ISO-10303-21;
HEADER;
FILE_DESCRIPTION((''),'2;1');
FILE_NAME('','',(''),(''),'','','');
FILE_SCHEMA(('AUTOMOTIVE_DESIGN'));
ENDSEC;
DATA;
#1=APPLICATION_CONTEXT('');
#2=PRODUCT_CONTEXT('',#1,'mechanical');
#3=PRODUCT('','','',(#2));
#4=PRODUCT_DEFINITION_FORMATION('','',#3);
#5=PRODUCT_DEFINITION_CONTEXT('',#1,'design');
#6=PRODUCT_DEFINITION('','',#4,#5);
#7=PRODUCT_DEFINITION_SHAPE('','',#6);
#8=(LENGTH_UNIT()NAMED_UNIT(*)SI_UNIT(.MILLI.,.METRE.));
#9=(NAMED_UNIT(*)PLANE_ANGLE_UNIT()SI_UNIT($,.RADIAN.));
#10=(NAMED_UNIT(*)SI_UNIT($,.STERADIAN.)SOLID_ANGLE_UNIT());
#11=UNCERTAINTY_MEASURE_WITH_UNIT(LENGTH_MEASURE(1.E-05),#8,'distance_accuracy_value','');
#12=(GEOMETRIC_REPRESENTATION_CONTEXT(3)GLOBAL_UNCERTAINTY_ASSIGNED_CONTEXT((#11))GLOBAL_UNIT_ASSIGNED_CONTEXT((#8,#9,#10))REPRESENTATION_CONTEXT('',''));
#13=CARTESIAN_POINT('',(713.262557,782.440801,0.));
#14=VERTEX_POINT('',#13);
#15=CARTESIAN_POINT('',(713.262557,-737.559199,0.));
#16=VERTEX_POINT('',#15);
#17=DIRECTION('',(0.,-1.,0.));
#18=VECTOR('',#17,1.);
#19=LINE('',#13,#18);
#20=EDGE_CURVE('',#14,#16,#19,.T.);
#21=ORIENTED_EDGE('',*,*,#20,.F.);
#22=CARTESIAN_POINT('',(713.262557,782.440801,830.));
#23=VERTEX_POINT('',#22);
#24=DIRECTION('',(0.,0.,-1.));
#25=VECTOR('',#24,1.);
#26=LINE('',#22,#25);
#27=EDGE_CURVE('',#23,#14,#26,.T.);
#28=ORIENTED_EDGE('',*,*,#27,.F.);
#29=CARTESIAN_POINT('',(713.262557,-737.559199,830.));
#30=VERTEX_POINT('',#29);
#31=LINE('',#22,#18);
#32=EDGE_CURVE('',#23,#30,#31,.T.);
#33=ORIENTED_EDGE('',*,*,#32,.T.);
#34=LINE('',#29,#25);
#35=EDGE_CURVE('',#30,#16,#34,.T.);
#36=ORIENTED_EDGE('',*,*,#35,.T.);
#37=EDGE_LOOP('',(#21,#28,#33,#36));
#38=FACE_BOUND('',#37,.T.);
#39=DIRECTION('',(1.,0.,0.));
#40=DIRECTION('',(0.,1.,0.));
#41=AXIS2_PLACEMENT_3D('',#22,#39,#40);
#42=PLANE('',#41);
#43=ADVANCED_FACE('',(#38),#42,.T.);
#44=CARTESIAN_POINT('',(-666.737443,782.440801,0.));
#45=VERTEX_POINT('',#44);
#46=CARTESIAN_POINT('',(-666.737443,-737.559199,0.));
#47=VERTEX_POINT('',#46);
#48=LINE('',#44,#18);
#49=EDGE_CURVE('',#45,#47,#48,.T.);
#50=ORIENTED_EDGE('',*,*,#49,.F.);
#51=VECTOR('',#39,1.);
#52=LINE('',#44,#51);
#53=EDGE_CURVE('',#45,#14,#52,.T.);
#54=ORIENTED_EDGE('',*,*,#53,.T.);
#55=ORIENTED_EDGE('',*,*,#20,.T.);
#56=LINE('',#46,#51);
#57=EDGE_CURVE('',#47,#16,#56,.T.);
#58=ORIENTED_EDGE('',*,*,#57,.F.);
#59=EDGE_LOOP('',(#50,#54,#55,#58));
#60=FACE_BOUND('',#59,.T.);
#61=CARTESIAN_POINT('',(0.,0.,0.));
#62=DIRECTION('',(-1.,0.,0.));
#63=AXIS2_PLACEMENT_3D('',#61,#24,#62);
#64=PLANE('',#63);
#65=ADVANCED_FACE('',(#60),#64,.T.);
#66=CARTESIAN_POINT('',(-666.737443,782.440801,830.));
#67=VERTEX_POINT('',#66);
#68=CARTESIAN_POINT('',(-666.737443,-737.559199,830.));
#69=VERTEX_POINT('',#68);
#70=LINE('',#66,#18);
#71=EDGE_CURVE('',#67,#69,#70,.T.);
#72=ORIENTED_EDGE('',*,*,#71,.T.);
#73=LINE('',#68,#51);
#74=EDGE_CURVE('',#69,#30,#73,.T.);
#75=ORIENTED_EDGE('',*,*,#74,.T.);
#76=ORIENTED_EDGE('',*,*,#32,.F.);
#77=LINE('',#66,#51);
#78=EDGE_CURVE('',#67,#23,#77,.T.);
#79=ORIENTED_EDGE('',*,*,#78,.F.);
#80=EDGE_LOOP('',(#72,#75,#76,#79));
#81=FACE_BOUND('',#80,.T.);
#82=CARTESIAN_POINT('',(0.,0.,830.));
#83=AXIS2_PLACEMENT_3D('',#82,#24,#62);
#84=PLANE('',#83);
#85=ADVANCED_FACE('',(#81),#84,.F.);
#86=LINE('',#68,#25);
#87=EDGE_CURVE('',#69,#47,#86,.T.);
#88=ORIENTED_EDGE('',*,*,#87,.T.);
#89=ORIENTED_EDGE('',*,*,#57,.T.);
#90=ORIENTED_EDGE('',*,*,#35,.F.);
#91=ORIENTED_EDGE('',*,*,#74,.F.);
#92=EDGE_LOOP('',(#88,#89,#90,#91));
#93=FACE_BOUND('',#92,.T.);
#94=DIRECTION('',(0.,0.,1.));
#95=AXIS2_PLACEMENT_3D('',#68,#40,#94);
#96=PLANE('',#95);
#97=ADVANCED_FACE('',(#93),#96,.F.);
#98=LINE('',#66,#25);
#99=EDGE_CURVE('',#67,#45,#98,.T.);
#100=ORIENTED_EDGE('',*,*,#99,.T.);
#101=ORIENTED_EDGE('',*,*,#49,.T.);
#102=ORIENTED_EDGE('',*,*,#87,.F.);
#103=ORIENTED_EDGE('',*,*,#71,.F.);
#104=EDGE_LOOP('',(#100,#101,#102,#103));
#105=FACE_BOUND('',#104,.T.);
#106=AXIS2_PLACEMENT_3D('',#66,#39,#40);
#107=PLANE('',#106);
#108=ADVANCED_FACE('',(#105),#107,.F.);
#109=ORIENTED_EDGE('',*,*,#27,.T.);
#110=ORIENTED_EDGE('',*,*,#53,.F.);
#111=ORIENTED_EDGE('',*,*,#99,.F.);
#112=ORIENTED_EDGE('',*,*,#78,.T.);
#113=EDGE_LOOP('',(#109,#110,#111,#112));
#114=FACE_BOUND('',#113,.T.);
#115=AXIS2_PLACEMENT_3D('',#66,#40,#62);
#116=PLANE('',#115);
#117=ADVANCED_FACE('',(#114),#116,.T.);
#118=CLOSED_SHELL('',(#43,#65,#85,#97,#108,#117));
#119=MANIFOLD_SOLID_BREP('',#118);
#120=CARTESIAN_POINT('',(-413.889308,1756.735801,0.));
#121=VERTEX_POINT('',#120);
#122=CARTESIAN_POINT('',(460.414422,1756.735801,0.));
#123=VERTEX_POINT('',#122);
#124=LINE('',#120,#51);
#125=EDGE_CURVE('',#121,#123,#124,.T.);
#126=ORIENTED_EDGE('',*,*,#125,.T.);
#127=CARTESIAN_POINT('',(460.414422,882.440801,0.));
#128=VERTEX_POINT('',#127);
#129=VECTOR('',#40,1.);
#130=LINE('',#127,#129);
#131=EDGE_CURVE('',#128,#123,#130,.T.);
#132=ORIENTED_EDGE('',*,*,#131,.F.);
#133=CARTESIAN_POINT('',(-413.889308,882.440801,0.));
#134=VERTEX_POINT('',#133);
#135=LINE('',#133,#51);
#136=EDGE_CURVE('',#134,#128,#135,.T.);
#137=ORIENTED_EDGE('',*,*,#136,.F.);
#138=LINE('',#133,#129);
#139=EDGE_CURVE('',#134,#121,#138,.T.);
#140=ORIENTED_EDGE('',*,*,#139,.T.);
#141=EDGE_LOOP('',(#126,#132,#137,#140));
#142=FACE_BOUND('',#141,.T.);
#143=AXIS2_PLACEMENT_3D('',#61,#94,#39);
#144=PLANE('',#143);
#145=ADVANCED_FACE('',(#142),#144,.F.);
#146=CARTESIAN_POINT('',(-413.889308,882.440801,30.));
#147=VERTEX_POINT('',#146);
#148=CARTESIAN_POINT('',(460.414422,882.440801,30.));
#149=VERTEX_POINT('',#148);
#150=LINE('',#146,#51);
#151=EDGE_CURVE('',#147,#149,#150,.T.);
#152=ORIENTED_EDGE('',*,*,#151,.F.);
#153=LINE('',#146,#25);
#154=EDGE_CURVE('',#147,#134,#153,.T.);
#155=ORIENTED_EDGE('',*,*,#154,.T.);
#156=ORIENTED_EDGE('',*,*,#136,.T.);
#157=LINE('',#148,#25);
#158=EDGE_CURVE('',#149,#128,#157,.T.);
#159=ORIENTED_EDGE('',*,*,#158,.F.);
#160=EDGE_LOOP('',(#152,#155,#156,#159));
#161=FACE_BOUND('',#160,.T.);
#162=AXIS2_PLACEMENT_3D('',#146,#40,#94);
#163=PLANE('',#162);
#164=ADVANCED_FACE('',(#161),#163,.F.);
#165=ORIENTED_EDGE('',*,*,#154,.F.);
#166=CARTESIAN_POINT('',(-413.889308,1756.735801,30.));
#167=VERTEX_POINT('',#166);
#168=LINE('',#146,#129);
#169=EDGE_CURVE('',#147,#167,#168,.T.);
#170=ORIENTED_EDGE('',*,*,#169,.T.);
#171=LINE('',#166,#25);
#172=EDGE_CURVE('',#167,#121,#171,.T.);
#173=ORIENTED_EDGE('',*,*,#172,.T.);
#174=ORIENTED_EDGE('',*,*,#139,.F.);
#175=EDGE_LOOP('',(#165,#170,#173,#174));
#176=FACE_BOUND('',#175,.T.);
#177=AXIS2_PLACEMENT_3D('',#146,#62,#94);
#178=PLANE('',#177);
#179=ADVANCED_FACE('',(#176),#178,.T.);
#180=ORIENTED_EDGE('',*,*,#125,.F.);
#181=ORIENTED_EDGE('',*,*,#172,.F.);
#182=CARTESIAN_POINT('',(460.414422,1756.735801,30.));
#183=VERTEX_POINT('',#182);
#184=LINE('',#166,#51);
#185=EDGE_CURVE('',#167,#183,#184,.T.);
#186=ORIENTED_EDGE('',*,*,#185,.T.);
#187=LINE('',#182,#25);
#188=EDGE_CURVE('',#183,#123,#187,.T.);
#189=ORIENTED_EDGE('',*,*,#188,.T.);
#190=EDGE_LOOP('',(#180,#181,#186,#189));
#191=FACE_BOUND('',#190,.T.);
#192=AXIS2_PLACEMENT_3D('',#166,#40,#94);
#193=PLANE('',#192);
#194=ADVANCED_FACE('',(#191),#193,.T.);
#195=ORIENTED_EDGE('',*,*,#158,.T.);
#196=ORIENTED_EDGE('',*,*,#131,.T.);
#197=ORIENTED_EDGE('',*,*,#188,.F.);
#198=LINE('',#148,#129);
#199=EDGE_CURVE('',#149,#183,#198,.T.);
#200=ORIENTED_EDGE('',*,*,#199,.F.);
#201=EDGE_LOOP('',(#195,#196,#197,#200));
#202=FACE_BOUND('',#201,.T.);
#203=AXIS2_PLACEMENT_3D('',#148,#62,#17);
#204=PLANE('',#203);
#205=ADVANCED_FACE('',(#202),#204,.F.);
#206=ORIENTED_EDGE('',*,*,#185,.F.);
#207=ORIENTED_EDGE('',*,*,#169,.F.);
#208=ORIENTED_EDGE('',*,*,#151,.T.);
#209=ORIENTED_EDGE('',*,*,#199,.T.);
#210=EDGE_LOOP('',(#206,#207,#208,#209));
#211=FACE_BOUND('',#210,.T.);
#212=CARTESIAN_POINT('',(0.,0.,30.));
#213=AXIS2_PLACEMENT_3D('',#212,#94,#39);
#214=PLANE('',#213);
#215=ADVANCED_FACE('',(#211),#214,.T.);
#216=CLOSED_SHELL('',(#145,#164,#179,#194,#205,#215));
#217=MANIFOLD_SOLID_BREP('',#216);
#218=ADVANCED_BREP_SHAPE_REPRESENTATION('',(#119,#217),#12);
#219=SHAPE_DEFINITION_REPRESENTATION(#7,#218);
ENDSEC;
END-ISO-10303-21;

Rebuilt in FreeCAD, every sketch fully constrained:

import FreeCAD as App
import Part
import Sketcher
from FreeCAD import Vector

doc = App.newDocument("Part")
body = doc.addObject("PartDesign::Body", "Body")

# Sketch on XY plane
sketch1 = body.newObject("Sketcher::SketchObject", "Sketch")
sketch1.AttachmentSupport = (doc.getObject("XY_Plane"), [""])
sketch1.MapMode = "FlatFace"
sketch1.addGeometry([
    Part.LineSegment(Vector(-666.737443, 782.440801, 0), Vector(-666.737443, -737.559199, 0)),
    Part.LineSegment(Vector(-666.737443, -737.559199, 0), Vector(713.262557, -737.559199, 0)),
    Part.LineSegment(Vector(713.262557, -737.559199, 0), Vector(713.262557, 782.440801, 0)),
    Part.LineSegment(Vector(713.262557, 782.440801, 0), Vector(-666.737443, 782.440801, 0)),
], False)
sketch1.addConstraint([
    Sketcher.Constraint("Coincident", 0, 2, 1, 1),
    Sketcher.Constraint("Coincident", 1, 2, 2, 1),
    Sketcher.Constraint("Coincident", 2, 2, 3, 1),
    Sketcher.Constraint("Coincident", 3, 2, 0, 1),
    Sketcher.Constraint("Vertical", 0),
    Sketcher.Constraint("Horizontal", 1),
    Sketcher.Constraint("Vertical", 2),
    Sketcher.Constraint("Horizontal", 3),
    Sketcher.Constraint("DistanceX", 1, 1, 1, 2, 1380.0),
    Sketcher.Constraint("DistanceY", 0, 2, 0, 1, 1520.0),
    Sketcher.Constraint("DistanceY", 0, 2, -1, 1, 737.559199),
    Sketcher.Constraint("DistanceX", 0, 2, -1, 1, 666.737443),
])
pad1 = body.newObject("PartDesign::Pad", "Pad")
pad1.Profile = sketch1
pad1.Length = 830
body2 = doc.addObject("PartDesign::Body", "Body001")

# Sketch on XY plane
sketch2 = body2.newObject("Sketcher::SketchObject", "Sketch001")
sketch2.AttachmentSupport = (doc.getObject("XY_Plane001"), [""])
sketch2.MapMode = "FlatFace"
sketch2.addGeometry([
    Part.LineSegment(Vector(-413.889308, 1756.735801, 0), Vector(-413.889308, 882.440801, 0)),
    Part.LineSegment(Vector(-413.889308, 882.440801, 0), Vector(460.414422, 882.440801, 0)),
    Part.LineSegment(Vector(460.414422, 882.440801, 0), Vector(460.414422, 1756.735801, 0)),
    Part.LineSegment(Vector(460.414422, 1756.735801, 0), Vector(-413.889308, 1756.735801, 0)),
], False)
sketch2.addConstraint([
    Sketcher.Constraint("Coincident", 0, 2, 1, 1),
    Sketcher.Constraint("Coincident", 1, 2, 2, 1),
    Sketcher.Constraint("Coincident", 2, 2, 3, 1),
    Sketcher.Constraint("Coincident", 3, 2, 0, 1),
    Sketcher.Constraint("Vertical", 0),
    Sketcher.Constraint("Horizontal", 1),
    Sketcher.Constraint("Vertical", 2),
    Sketcher.Constraint("Horizontal", 3),
    Sketcher.Constraint("DistanceY", 0, 2, 0, 1, 874.295),
    Sketcher.Constraint("DistanceX", 1, 1, 1, 2, 874.30373),
    Sketcher.Constraint("DistanceY", -1, 1, 0, 2, 882.440801),
    Sketcher.Constraint("DistanceX", -1, 1, 1, 2, 460.414422),
])
pad2 = body2.newObject("PartDesign::Pad", "Pad001")
pad2.Profile = sketch2
pad2.Length = 30

doc.recompute()
